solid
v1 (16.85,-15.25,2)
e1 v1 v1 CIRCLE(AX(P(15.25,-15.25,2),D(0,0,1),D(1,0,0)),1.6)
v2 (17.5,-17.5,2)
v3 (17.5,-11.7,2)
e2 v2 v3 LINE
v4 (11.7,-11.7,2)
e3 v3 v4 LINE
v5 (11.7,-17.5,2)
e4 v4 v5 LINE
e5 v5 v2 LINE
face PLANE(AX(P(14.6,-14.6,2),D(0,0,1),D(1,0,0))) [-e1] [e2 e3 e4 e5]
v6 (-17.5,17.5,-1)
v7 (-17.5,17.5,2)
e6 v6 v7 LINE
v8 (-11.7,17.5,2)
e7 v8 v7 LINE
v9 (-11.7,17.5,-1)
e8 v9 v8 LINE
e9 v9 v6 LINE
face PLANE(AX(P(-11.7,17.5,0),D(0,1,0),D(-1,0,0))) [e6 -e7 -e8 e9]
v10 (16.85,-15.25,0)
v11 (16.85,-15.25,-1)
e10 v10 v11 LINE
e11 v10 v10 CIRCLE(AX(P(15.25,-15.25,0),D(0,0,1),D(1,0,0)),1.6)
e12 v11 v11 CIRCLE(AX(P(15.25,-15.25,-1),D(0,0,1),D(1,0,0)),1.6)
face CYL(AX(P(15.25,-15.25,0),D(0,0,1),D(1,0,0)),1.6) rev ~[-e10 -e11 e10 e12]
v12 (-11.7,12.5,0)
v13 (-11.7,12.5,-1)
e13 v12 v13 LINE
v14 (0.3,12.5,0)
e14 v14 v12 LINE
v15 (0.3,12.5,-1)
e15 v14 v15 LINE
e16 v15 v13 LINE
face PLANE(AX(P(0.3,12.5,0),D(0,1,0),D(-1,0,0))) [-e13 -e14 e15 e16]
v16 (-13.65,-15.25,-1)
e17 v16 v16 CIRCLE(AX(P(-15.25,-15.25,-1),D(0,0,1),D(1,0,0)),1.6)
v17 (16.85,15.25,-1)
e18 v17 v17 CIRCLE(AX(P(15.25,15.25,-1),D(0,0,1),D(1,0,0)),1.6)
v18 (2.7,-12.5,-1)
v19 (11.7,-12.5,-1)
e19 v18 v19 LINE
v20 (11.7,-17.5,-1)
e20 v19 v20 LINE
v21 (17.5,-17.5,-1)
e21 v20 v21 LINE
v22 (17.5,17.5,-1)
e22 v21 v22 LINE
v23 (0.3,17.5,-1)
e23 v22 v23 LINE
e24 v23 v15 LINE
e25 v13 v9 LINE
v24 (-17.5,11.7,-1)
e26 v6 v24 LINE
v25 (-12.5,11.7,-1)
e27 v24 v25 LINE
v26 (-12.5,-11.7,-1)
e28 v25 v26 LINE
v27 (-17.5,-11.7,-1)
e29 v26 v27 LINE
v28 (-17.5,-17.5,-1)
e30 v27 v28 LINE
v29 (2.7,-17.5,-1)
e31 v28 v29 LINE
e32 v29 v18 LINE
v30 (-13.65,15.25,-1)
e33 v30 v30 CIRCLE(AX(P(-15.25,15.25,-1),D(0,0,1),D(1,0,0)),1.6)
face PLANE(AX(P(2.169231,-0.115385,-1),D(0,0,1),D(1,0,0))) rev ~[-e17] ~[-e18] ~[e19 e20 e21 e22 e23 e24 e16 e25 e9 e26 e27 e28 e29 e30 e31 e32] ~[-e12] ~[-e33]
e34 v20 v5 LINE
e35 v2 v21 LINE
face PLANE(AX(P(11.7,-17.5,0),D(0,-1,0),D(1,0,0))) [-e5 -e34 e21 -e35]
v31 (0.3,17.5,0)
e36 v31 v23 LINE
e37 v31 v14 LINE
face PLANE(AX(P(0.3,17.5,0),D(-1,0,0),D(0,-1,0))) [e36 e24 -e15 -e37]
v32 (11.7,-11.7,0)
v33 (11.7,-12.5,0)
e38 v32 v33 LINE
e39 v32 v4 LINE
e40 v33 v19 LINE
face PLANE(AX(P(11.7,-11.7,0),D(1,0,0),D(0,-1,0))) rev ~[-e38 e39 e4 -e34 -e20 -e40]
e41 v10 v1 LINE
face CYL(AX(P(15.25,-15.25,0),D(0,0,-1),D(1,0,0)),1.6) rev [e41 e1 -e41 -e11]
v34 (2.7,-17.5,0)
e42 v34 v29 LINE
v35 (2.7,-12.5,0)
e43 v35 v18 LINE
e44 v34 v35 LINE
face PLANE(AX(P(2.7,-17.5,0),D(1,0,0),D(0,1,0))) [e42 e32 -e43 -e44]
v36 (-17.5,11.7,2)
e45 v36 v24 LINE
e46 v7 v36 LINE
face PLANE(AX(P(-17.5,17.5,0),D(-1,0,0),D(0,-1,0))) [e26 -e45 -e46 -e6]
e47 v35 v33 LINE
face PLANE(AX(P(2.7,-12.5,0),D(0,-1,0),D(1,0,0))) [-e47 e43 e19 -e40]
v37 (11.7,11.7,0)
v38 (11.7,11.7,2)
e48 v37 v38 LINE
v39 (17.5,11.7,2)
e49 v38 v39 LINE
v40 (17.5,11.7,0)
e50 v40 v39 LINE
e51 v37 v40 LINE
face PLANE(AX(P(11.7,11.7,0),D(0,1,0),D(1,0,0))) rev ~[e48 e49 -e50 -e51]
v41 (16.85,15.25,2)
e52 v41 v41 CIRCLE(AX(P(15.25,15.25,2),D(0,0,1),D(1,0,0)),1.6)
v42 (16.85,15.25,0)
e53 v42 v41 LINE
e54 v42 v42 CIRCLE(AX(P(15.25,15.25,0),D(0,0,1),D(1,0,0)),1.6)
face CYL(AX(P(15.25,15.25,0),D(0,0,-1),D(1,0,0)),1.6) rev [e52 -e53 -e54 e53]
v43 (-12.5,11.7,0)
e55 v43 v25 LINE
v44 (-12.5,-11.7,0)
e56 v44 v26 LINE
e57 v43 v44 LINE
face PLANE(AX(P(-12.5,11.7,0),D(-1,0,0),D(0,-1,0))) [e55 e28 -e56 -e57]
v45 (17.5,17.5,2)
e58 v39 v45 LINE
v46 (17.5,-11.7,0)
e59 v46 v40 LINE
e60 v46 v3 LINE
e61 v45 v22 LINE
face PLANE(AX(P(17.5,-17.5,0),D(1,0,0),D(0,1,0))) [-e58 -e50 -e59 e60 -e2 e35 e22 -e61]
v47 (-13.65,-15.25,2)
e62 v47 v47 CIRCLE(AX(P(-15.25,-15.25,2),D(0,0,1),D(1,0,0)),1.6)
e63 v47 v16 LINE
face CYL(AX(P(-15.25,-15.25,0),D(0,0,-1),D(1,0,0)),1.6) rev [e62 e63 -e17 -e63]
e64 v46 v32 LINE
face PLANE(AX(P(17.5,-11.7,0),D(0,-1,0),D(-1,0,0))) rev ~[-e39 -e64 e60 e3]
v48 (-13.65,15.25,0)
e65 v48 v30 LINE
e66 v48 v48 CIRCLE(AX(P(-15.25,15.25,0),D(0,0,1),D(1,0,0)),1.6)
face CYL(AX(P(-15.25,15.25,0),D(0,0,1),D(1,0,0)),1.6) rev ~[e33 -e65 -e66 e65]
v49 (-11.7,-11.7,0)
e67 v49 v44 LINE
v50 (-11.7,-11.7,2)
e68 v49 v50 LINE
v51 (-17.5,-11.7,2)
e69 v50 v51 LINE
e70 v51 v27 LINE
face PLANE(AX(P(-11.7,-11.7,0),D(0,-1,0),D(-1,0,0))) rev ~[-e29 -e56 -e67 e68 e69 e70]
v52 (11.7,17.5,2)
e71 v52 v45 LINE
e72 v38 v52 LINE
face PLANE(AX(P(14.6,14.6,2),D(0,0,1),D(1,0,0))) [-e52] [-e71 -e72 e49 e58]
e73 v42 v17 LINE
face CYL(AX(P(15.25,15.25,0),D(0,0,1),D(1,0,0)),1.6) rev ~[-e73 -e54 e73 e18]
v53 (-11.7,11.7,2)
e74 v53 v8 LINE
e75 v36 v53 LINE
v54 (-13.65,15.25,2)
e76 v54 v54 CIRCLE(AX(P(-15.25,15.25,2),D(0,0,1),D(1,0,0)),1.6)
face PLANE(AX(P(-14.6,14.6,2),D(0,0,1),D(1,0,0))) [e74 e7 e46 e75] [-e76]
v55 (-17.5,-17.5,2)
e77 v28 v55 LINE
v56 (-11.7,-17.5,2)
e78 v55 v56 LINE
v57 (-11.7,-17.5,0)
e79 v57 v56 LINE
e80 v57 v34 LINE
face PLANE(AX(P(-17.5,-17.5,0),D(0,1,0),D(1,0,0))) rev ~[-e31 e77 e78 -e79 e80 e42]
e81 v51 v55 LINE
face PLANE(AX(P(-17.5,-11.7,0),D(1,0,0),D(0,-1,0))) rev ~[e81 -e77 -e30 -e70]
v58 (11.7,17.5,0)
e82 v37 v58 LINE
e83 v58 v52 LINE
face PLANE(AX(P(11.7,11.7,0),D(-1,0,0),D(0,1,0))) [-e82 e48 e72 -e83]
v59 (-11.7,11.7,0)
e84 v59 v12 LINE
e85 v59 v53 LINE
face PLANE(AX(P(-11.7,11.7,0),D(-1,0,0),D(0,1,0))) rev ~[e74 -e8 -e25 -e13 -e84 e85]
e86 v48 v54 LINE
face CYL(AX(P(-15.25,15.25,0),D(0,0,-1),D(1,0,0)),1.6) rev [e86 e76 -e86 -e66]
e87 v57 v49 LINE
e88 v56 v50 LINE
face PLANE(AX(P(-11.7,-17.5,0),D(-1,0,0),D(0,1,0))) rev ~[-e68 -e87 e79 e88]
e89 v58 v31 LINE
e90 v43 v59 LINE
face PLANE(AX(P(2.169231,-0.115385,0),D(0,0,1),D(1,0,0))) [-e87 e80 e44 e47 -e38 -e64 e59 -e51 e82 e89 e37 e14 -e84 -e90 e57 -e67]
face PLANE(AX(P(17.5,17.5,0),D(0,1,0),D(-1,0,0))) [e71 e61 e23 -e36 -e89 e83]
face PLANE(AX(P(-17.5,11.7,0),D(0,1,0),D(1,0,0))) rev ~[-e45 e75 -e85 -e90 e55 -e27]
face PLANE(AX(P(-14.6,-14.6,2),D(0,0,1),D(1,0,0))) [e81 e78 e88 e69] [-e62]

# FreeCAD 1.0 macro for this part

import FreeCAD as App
import Part
import Sketcher
from FreeCAD import Vector

doc = App.newDocument("Part")
body = doc.addObject("PartDesign::Body", "Body")

# Sketch on XY plane
sketch1 = body.newObject("Sketcher::SketchObject", "Sketch")
sketch1.AttachmentSupport = (doc.getObject("XY_Plane"), [""])
sketch1.MapMode = "FlatFace"
sketch1.addGeometry(Part.LineSegment(Vector(0.3, 17.5, 0), Vector(0.3, 12.5, 0)), False)
sketch1.addGeometry(Part.LineSegment(Vector(0.3, 12.5, 0), Vector(-11.7, 12.5, 0)), False)
sketch1.addGeometry(Part.LineSegment(Vector(-11.7, 12.5, 0), Vector(-11.7, 17.5, 0)), False)
sketch1.addGeometry(Part.LineSegment(Vector(-11.7, 17.5, 0), Vector(-17.5, 17.5, 0)), False)
sketch1.addGeometry(Part.LineSegment(Vector(-17.5, 17.5, 0), Vector(-17.5, 11.7, 0)), False)
sketch1.addGeometry(Part.LineSegment(Vector(-17.5, 11.7, 0), Vector(-12.5, 11.7, 0)), False)
sketch1.addGeometry(Part.LineSegment(Vector(-12.5, 11.7, 0), Vector(-12.5, -11.7, 0)), False)
sketch1.addGeometry(Part.LineSegment(Vector(-12.5, -11.7, 0), Vector(-17.5, -11.7, 0)), False)
sketch1.addGeometry(Part.LineSegment(Vector(-17.5, -11.7, 0), Vector(-17.5, -17.5, 0)), False)
sketch1.addGeometry(Part.LineSegment(Vector(-17.5, -17.5, 0), Vector(2.7, -17.5, 0)), False)
sketch1.addGeometry(Part.LineSegment(Vector(2.7, -17.5, 0), Vector(2.7, -12.5, 0)), False)
sketch1.addGeometry(Part.LineSegment(Vector(2.7, -12.5, 0), Vector(11.7, -12.5, 0)), False)
sketch1.addGeometry(Part.LineSegment(Vector(11.7, -12.5, 0), Vector(11.7, -17.5, 0)), False)
sketch1.addGeometry(Part.LineSegment(Vector(11.7, -17.5, 0), Vector(17.5, -17.5, 0)), False)
sketch1.addGeometry(Part.LineSegment(Vector(17.5, -17.5, 0), Vector(17.5, 17.5, 0)), False)
sketch1.addGeometry(Part.LineSegment(Vector(17.5, 17.5, 0), Vector(0.3, 17.5, 0)), False)
sketch1.addGeometry(Part.Circle(Vector(-15.2, -15.2, 0), Vector(0, 0, 1), 1.6), False)
sketch1.addGeometry(Part.Circle(Vector(15.2, -15.2, 0), Vector(0, 0, 1), 1.6), False)
sketch1.addGeometry(Part.Circle(Vector(-15.2, 15.2, 0), Vector(0, 0, 1), 1.6), False)
sketch1.addGeometry(Part.Circle(Vector(15.2, 15.2, 0), Vector(0, 0, 1), 1.6), False)
sketch1.addConstraint(Sketcher.Constraint("Coincident", 0, 2, 1, 1))
sketch1.addConstraint(Sketcher.Constraint("Coincident", 1, 2, 2, 1))
sketch1.addConstraint(Sketcher.Constraint("Coincident", 2, 2, 3, 1))
sketch1.addConstraint(Sketcher.Constraint("Coincident", 3, 2, 4, 1))
sketch1.addConstraint(Sketcher.Constraint("Coincident", 4, 2, 5, 1))
sketch1.addConstraint(Sketcher.Constraint("Coincident", 5, 2, 6, 1))
sketch1.addConstraint(Sketcher.Constraint("Coincident", 6, 2, 7, 1))
sketch1.addConstraint(Sketcher.Constraint("Coincident", 7, 2, 8, 1))
sketch1.addConstraint(Sketcher.Constraint("Coincident", 8, 2, 9, 1))
sketch1.addConstraint(Sketcher.Constraint("Coincident", 9, 2, 10, 1))
sketch1.addConstraint(Sketcher.Constraint("Coincident", 10, 2, 11, 1))
sketch1.addConstraint(Sketcher.Constraint("Coincident", 11, 2, 12, 1))
sketch1.addConstraint(Sketcher.Constraint("Coincident", 12, 2, 13, 1))
sketch1.addConstraint(Sketcher.Constraint("Coincident", 13, 2, 14, 1))
sketch1.addConstraint(Sketcher.Constraint("Coincident", 14, 2, 15, 1))
sketch1.addConstraint(Sketcher.Constraint("Coincident", 15, 2, 0, 1))
sketch1.addConstraint(Sketcher.Constraint("Vertical", 0))
sketch1.addConstraint(Sketcher.Constraint("Horizontal", 1))
sketch1.addConstraint(Sketcher.Constraint("Vertical", 2))
sketch1.addConstraint(Sketcher.Constraint("Horizontal", 3))
sketch1.addConstraint(Sketcher.Constraint("Vertical", 4))
sketch1.addConstraint(Sketcher.Constraint("Horizontal", 5))
sketch1.addConstraint(Sketcher.Constraint("Vertical", 6))
sketch1.addConstraint(Sketcher.Constraint("Horizontal", 7))
sketch1.addConstraint(Sketcher.Constraint("Vertical", 8))
sketch1.addConstraint(Sketcher.Constraint("Horizontal", 9))
sketch1.addConstraint(Sketcher.Constraint("Vertical", 10))
sketch1.addConstraint(Sketcher.Constraint("Horizontal", 11))
sketch1.addConstraint(Sketcher.Constraint("Vertical", 12))
sketch1.addConstraint(Sketcher.Constraint("Horizontal", 13))
sketch1.addConstraint(Sketcher.Constraint("Vertical", 14))
sketch1.addConstraint(Sketcher.Constraint("Horizontal", 15))
sketch1.addConstraint(Sketcher.Constraint("Equal", 16, 17))
sketch1.addConstraint(Sketcher.Constraint("Equal", 17, 18))
sketch1.addConstraint(Sketcher.Constraint("Equal", 18, 19))
sketch1.addConstraint(Sketcher.Constraint("Symmetric", 17, 3, 18, 3, -1, 1))
sketch1.addConstraint(Sketcher.Constraint("Symmetric", 16, 3, 19, 3, -1, 1))
sketch1.addConstraint(Sketcher.Constraint("Symmetric", 1, 2, 11, 2, -1, 1))
sketch1.addConstraint(Sketcher.Constraint("Symmetric", 3, 2, 13, 2, -1, 1))
sketch1.addConstraint(Sketcher.Constraint("Symmetric", 8, 2, 14, 2, -1, 1))
sketch1.addConstraint(Sketcher.Constraint("Symmetric", 16, 3, 17, 3, -2))
sketch1.addConstraint(Sketcher.Constraint("Horizontal", 9, 2, 12, 2))
sketch1.addConstraint(Sketcher.Constraint("Equal", 7, 0))
sketch1.addConstraint(Sketcher.Constraint("Equal", 13, 4))
sketch1.addConstraint(Sketcher.Constraint("Equal", 4, 8))
sketch1.addConstraint(Sketcher.Constraint("Diameter", 16, 3.2))
sketch1.addConstraint(Sketcher.Constraint("DistanceX", 1, 2, 1, 1, 12.0))
sketch1.addConstraint(Sketcher.Constraint("DistanceX", 5, 1, 5, 2, 5.0))
sketch1.addConstraint(Sketcher.Constraint("DistanceX", 11, 1, 11, 2, 9.0))
sketch1.addConstraint(Sketcher.Constraint("DistanceY", 14, 1, 14, 2, 35.0))
sketch1.addConstraint(Sketcher.Constraint("DistanceX", 3, 2, 3, 1, 5.8))
sketch1.addConstraint(Sketcher.Constraint("DistanceX", 9, 1, 9, 2, 20.2))
sketch1.addConstraint(Sketcher.Constraint("DistanceX", 16, 3, 17, 3, 30.5))
sketch1.addConstraint(Sketcher.Constraint("DistanceY", 16, 3, 18, 3, 30.5))
pad1 = body.newObject("PartDesign::Pad", "Pad")
pad1.Profile = sketch1
pad1.Length = 1
pad1.Reversed = True

# Sketch on XY plane
sketch2 = body.newObject("Sketcher::SketchObject", "Sketch001")
sketch2.AttachmentSupport = (doc.getObject("XY_Plane"), [""])
sketch2.MapMode = "FlatFace"
sketch2.addGeometry(Part.LineSegment(Vector(-17.5, -11.7, 0), Vector(-17.5, -17.5, 0)), False)
sketch2.addGeometry(Part.LineSegment(Vector(-17.5, -17.5, 0), Vector(-11.7, -17.5, 0)), False)
sketch2.addGeometry(Part.LineSegment(Vector(-11.7, -17.5, 0), Vector(-11.7, -11.7, 0)), False)
sketch2.addGeometry(Part.LineSegment(Vector(-11.7, -11.7, 0), Vector(-17.5, -11.7, 0)), False)
sketch2.addGeometry(Part.Circle(Vector(-15.2, -15.2, 0), Vector(0, 0, 1), 1.6), False)
sketch2.addGeometry(Part.LineSegment(Vector(-11.7, 17.5, 0), Vector(-17.5, 17.5, 0)), False)
sketch2.addGeometry(Part.LineSegment(Vector(-17.5, 17.5, 0), Vector(-17.5, 11.7, 0)), False)
sketch2.addGeometry(Part.LineSegment(Vector(-17.5, 11.7, 0), Vector(-11.7, 11.7, 0)), False)
sketch2.addGeometry(Part.LineSegment(Vector(-11.7, 11.7, 0), Vector(-11.7, 17.5, 0)), False)
sketch2.addGeometry(Part.Circle(Vector(-15.2, 15.2, 0), Vector(0, 0, 1), 1.6), False)
sketch2.addGeometry(Part.LineSegment(Vector(11.7, 17.5, 0), Vector(11.7, 11.7, 0)), False)
sketch2.addGeometry(Part.LineSegment(Vector(11.7, 11.7, 0), Vector(17.5, 11.7, 0)), False)
sketch2.addGeometry(Part.LineSegment(Vector(17.5, 11.7, 0), Vector(17.5, 17.5, 0)), False)
sketch2.addGeometry(Part.LineSegment(Vector(17.5, 17.5, 0), Vector(11.7, 17.5, 0)), False)
sketch2.addGeometry(Part.Circle(Vector(15.2, 15.2, 0), Vector(0, 0, 1), 1.6), False)
sketch2.addGeometry(Part.LineSegment(Vector(17.5, -17.5, 0), Vector(17.5, -11.7, 0)), False)
sketch2.addGeometry(Part.LineSegment(Vector(17.5, -11.7, 0), Vector(11.7, -11.7, 0)), False)
sketch2.addGeometry(Part.LineSegment(Vector(11.7, -11.7, 0), Vector(11.7, -17.5, 0)), False)
sketch2.addGeometry(Part.LineSegment(Vector(11.7, -17.5, 0), Vector(17.5, -17.5, 0)), False)
sketch2.addGeometry(Part.Circle(Vector(15.2, -15.2, 0), Vector(0, 0, 1), 1.6), False)
sketch2.addConstraint(Sketcher.Constraint("Coincident", 0, 2, 1, 1))
sketch2.addConstraint(Sketcher.Constraint("Coincident", 1, 2, 2, 1))
sketch2.addConstraint(Sketcher.Constraint("Coincident", 2, 2, 3, 1))
sketch2.addConstraint(Sketcher.Constraint("Coincident", 3, 2, 0, 1))
sketch2.addConstraint(Sketcher.Constraint("Coincident", 5, 2, 6, 1))
sketch2.addConstraint(Sketcher.Constraint("Coincident", 6, 2, 7, 1))
sketch2.addConstraint(Sketcher.Constraint("Coincident", 7, 2, 8, 1))
sketch2.addConstraint(Sketcher.Constraint("Coincident", 8, 2, 5, 1))
sketch2.addConstraint(Sketcher.Constraint("Coincident", 10, 2, 11, 1))
sketch2.addConstraint(Sketcher.Constraint("Coincident", 11, 2, 12, 1))
sketch2.addConstraint(Sketcher.Constraint("Coincident", 12, 2, 13, 1))
sketch2.addConstraint(Sketcher.Constraint("Coincident", 13, 2, 10, 1))
sketch2.addConstraint(Sketcher.Constraint("Coincident", 15, 2, 16, 1))
sketch2.addConstraint(Sketcher.Constraint("Coincident", 16, 2, 17, 1))
sketch2.addConstraint(Sketcher.Constraint("Coincident", 17, 2, 18, 1))
sketch2.addConstraint(Sketcher.Constraint("Coincident", 18, 2, 15, 1))
sketch2.addConstraint(Sketcher.Constraint("Vertical", 0))
sketch2.addConstraint(Sketcher.Constraint("Horizontal", 1))
sketch2.addConstraint(Sketcher.Constraint("Vertical", 2))
sketch2.addConstraint(Sketcher.Constraint("Horizontal", 3))
sketch2.addConstraint(Sketcher.Constraint("Horizontal", 5))
sketch2.addConstraint(Sketcher.Constraint("Vertical", 6))
sketch2.addConstraint(Sketcher.Constraint("Horizontal", 7))
sketch2.addConstraint(Sketcher.Constraint("Vertical", 8))
sketch2.addConstraint(Sketcher.Constraint("Vertical", 10))
sketch2.addConstraint(Sketcher.Constraint("Horizontal", 11))
sketch2.addConstraint(Sketcher.Constraint("Vertical", 12))
sketch2.addConstraint(Sketcher.Constraint("Horizontal", 13))
sketch2.addConstraint(Sketcher.Constraint("Vertical", 15))
sketch2.addConstraint(Sketcher.Constraint("Horizontal", 16))
sketch2.addConstraint(Sketcher.Constraint("Vertical", 17))
sketch2.addConstraint(Sketcher.Constraint("Horizontal", 18))
sketch2.addConstraint(Sketcher.Constraint("Equal", 4, 9))
sketch2.addConstraint(Sketcher.Constraint("Equal", 9, 14))
sketch2.addConstraint(Sketcher.Constraint("Equal", 14, 19))
sketch2.addConstraint(Sketcher.Constraint("Symmetric", 4, 3, 14, 3, -1, 1))
sketch2.addConstraint(Sketcher.Constraint("Symmetric", 9, 3, 19, 3, -1, 1))
sketch2.addConstraint(Sketcher.Constraint("Symmetric", 2, 2, 10, 2, -1, 1))
sketch2.addConstraint(Sketcher.Constraint("Symmetric", 0, 2, 12, 2, -1, 1))
sketch2.addConstraint(Sketcher.Constraint("Symmetric", 6, 2, 15, 2, -1, 1))
sketch2.addConstraint(Sketcher.Constraint("Symmetric", 8, 2, 17, 2, -1, 1))
sketch2.addConstraint(Sketcher.Constraint("Symmetric", 9, 3, 14, 3, -2))
sketch2.addConstraint(Sketcher.Constraint("Symmetric", 7, 2, 10, 2, -2))
sketch2.addConstraint(Sketcher.Constraint("Symmetric", 5, 2, 12, 2, -2))
sketch2.addConstraint(Sketcher.Constraint("Equal", 18, 0))
sketch2.addConstraint(Sketcher.Constraint("Diameter", 4, 3.2))
sketch2.addConstraint(Sketcher.Constraint("DistanceX", 1, 1, 1, 2, 5.8))
sketch2.addConstraint(Sketcher.Constraint("DistanceX", 0, 2, -1, 1, 17.5))
sketch2.addConstraint(Sketcher.Constraint("DistanceY", 0, 2, -1, 1, 17.5))
sketch2.addConstraint(Sketcher.Constraint("DistanceY", 4, 3, 9, 3, 30.5))
sketch2.addConstraint(Sketcher.Constraint("DistanceX", 9, 3, 14, 3, 30.5))
pad2 = body.newObject("PartDesign::Pad", "Pad001")
pad2.Profile = sketch2
pad2.Length = 2

doc.recompute()
